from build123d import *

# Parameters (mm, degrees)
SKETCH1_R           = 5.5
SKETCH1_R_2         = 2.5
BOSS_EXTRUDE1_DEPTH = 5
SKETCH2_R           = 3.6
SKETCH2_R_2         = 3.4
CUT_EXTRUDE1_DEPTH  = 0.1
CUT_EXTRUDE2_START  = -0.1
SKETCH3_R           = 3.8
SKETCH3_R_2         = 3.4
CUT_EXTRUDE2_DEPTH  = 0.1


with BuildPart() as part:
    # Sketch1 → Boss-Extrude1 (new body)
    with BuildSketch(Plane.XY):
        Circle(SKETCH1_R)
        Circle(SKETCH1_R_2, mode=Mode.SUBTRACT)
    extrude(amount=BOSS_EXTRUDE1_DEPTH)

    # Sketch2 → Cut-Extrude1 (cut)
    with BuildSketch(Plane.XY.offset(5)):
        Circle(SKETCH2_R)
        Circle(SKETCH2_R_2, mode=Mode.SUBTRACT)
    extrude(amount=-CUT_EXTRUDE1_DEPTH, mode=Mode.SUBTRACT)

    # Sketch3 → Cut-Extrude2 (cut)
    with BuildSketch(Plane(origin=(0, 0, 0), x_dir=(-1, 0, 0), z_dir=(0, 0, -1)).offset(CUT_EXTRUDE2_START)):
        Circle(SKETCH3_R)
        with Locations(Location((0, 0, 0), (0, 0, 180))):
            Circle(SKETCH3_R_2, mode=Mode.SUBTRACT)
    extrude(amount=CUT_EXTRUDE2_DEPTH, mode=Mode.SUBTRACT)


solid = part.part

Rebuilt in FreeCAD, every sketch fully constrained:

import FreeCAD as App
import Part
import Sketcher
from FreeCAD import Vector

doc = App.newDocument("Part")
body = doc.addObject("PartDesign::Body", "Body")

# Sketch on XY plane
sketch1 = body.newObject("Sketcher::SketchObject", "Sketch")
sketch1.AttachmentSupport = (doc.getObject("XY_Plane"), [""])
sketch1.MapMode = "FlatFace"
sketch1.addGeometry([
    Part.Circle(Vector(0, 0, 0), Vector(0, 0, 1), 5.5),
    Part.Circle(Vector(0, 0, 0), Vector(0, 0, 1), 2.5),
], False)
sketch1.addConstraint([
    Sketcher.Constraint("Coincident", 0, 3, -1, 1),
    Sketcher.Constraint("Coincident", 1, 3, -1, 1),
    Sketcher.Constraint("Diameter", 0, 11.0),
    Sketcher.Constraint("Diameter", 1, 5.0),
])
pad1 = body.newObject("PartDesign::Pad", "Pad")
pad1.Profile = sketch1
pad1.Length = 5

# Sketch on XY plane
sketch2 = body.newObject("Sketcher::SketchObject", "Sketch001")
sketch2.AttachmentSupport = (doc.getObject("XY_Plane"), [""])
sketch2.MapMode = "FlatFace"
sketch2.AttachmentOffset = App.Placement(Vector(0, 0, 5), App.Rotation())
sketch2.addGeometry([
    Part.Circle(Vector(0, 0, 0), Vector(0, 0, 1), 3.6),
    Part.Circle(Vector(0, 0, 0), Vector(0, 0, 1), 3.4),
], False)
sketch2.addConstraint([
    Sketcher.Constraint("Coincident", 0, 3, -1, 1),
    Sketcher.Constraint("Coincident", 1, 3, -1, 1),
    Sketcher.Constraint("Diameter", 0, 7.2),
    Sketcher.Constraint("Diameter", 1, 6.8),
])
pocket1 = body.newObject("PartDesign::Pocket", "Pocket")
pocket1.Profile = sketch2
pocket1.Length = 0.1

# Sketch on XY plane
sketch3 = body.newObject("Sketcher::SketchObject", "Sketch002")
sketch3.AttachmentSupport = (doc.getObject("XY_Plane"), [""])
sketch3.MapMode = "FlatFace"
sketch3.AttachmentOffset = App.Placement(Vector(0, 0, 0.1), App.Rotation())
sketch3.addGeometry([
    Part.Circle(Vector(0, 0, 0), Vector(0, 0, 1), 3.8),
    Part.Circle(Vector(0, 0, 0), Vector(0, 0, 1), 3.4),
], False)
sketch3.addConstraint([
    Sketcher.Constraint("Coincident", 0, 3, -1, 1),
    Sketcher.Constraint("Coincident", 1, 3, -1, 1),
    Sketcher.Constraint("Diameter", 0, 7.6),
    Sketcher.Constraint("Diameter", 1, 6.8),
])
pocket2 = body.newObject("PartDesign::Pocket", "Pocket001")
pocket2.Profile = sketch3
pocket2.Length = 0.1

doc.recompute()
